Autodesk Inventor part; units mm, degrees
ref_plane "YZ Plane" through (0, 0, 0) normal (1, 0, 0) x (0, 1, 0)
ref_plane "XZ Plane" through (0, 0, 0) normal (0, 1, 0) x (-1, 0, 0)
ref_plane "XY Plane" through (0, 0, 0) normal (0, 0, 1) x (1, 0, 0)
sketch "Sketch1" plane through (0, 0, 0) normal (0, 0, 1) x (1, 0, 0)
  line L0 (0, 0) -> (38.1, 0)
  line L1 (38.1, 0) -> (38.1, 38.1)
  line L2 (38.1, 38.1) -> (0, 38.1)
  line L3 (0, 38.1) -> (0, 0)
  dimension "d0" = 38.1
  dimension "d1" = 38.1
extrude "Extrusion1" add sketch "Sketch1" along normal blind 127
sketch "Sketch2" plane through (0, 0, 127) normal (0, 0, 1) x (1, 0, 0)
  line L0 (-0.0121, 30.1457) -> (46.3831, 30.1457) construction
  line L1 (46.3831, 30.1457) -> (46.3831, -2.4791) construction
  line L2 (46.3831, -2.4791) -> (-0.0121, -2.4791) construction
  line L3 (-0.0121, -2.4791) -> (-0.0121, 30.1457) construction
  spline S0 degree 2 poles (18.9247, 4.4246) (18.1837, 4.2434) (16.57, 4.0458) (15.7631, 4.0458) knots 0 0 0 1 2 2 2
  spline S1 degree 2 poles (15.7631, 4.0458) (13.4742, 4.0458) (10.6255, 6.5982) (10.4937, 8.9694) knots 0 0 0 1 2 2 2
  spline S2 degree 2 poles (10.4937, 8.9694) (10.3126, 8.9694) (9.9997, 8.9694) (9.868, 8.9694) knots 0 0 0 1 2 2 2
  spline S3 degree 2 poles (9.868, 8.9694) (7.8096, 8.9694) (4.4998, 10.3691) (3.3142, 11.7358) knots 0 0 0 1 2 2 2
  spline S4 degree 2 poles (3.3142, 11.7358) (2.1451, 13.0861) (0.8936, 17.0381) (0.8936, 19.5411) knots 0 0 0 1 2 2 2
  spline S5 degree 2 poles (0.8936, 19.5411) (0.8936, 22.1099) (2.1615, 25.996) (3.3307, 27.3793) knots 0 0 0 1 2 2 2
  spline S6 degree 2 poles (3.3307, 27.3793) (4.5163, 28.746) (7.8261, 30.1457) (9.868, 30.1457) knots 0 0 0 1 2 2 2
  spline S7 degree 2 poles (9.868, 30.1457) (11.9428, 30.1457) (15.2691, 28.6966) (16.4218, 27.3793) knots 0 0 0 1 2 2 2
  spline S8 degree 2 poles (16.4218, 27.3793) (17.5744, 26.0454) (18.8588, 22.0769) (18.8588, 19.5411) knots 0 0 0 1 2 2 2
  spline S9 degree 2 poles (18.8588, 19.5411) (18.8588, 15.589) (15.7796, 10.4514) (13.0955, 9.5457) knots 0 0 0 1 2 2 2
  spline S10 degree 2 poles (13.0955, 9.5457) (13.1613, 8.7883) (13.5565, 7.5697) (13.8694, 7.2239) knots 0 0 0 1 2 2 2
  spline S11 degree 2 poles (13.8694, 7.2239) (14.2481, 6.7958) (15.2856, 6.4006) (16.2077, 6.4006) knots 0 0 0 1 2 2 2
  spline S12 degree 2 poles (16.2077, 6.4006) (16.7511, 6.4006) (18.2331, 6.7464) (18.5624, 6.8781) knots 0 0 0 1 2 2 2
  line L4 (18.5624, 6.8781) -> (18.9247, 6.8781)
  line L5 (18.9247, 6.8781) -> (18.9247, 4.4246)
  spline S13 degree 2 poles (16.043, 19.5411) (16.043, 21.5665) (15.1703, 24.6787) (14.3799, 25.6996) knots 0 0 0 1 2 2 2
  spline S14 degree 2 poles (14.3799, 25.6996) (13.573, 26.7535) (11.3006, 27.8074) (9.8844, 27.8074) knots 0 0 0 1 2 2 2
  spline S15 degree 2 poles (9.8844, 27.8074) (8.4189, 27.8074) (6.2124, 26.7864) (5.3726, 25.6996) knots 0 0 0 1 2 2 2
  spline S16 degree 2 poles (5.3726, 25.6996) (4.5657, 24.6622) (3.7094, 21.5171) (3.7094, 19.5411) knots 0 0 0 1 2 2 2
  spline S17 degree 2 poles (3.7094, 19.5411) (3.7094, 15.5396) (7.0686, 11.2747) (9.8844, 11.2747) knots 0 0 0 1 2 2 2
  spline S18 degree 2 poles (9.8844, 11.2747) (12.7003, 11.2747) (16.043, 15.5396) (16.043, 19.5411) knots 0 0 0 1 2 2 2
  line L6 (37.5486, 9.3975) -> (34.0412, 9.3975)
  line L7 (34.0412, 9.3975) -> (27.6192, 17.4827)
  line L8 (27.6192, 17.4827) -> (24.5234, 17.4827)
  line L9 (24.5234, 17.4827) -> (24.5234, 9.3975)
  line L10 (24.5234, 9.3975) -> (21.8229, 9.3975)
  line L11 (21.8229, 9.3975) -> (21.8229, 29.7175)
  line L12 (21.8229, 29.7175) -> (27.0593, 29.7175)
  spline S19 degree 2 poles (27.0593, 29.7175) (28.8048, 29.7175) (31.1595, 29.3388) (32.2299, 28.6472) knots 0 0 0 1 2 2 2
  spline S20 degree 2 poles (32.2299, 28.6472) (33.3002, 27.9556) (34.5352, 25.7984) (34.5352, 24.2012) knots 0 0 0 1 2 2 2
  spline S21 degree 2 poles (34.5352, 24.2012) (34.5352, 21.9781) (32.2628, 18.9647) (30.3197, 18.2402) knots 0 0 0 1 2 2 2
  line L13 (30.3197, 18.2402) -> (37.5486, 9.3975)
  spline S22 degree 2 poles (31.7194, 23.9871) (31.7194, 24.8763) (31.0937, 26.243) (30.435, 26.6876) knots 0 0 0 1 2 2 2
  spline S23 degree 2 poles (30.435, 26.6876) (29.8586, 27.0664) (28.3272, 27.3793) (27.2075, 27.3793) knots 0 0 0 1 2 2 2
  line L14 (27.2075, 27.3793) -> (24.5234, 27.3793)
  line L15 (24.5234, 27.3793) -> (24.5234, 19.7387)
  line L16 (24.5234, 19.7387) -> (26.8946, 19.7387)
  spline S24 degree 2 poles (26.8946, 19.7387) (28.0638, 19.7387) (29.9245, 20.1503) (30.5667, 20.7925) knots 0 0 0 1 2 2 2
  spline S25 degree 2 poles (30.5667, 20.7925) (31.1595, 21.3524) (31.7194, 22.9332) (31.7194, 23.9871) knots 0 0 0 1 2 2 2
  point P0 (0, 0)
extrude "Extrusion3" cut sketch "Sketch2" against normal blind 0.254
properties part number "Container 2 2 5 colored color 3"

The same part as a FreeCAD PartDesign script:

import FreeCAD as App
import Part
import Sketcher

V = App.Vector
Q = App.Units.Quantity

doc = App.newDocument("Part")
body = doc.addObject("PartDesign::Body", "Body")

# Sketch on XY plane
sketch1 = doc.addObject("Sketcher::SketchObject", "Sketch")
body.addObject(sketch1)
sketch1.AttachmentSupport = (doc.XY_Plane, [""])
sketch1.MapMode = "FlatFace"
sketch1.addGeometry(Part.LineSegment(V(0, 38, 0), V(0, 0, 0)), False)
sketch1.addGeometry(Part.LineSegment(V(0, 0, 0), V(38, 0, 0)), False)
sketch1.addGeometry(Part.LineSegment(V(38, 0, 0), V(38, 38, 0)), False)
sketch1.addGeometry(Part.LineSegment(V(38, 38, 0), V(0, 38, 0)), False)
sketch1.addConstraint(Sketcher.Constraint("Coincident", 0, 2, 1, 1))
sketch1.addConstraint(Sketcher.Constraint("Coincident", 1, 2, 2, 1))
sketch1.addConstraint(Sketcher.Constraint("Coincident", 2, 2, 3, 1))
sketch1.addConstraint(Sketcher.Constraint("Coincident", 3, 2, 0, 1))
sketch1.addConstraint(Sketcher.Constraint("Vertical", 0))
sketch1.addConstraint(Sketcher.Constraint("Horizontal", 1))
sketch1.addConstraint(Sketcher.Constraint("Vertical", 2))
sketch1.addConstraint(Sketcher.Constraint("Horizontal", 3))
sketch1.addConstraint(Sketcher.Constraint("Coincident", 0, 2, -1, 1))
sketch1.addConstraint(Sketcher.Constraint("Equal", 3, 0))
sketch1.addConstraint(Sketcher.Constraint("DistanceX", 1, 1, 1, 2, Q("1.5 in")))
pad1 = doc.addObject("PartDesign::Pad", "Pad")
body.addObject(pad1)
pad1.Profile = sketch1
pad1.Length = Q("5 in")

# Sketch on XY plane
sketch2 = doc.addObject("Sketcher::SketchObject", "Sketch001")
body.addObject(sketch2)
sketch2.AttachmentSupport = (doc.XY_Plane, [""])
sketch2.MapMode = "FlatFace"
sketch2.AttachmentOffset = App.Placement(V(0, 0, 5 * 25.4), App.Rotation())
sketch2.addGeometry(Part.BSplineCurve([V(18.9247, 4.4246, 0), V(18.1837, 4.2434, 0), V(16.57, 4.0458, 0), V(15.7631, 4.0458, 0)], [3, 1, 3], [0, 1, 2], False, 2, [1, 1, 1, 1], False), False)
sketch2.addGeometry(Part.LineSegment(V(18.9247, 4.4246, 0), V(18.9247, 6.8781, 0)), False)
sketch2.addGeometry(Part.LineSegment(V(18.9247, 6.8781, 0), V(18.5624, 6.8781, 0)), False)
sketch2.addGeometry(Part.BSplineCurve([V(16.2077, 6.4006, 0), V(16.7511, 6.4006, 0), V(18.2331, 6.7464, 0), V(18.5624, 6.8781, 0)], [3, 1, 3], [0, 1, 2], False, 2, [1, 1, 1, 1], False), False)
sketch2.addGeometry(Part.BSplineCurve([V(13.8694, 7.2239, 0), V(14.2481, 6.7958, 0), V(15.2856, 6.4006, 0), V(16.2077, 6.4006, 0)], [3, 1, 3], [0, 1, 2], False, 2, [1, 1, 1, 1], False), False)
sketch2.addGeometry(Part.BSplineCurve([V(13.0955, 9.5457, 0), V(13.1613, 8.7883, 0), V(13.5565, 7.5697, 0), V(13.8694, 7.2239, 0)], [3, 1, 3], [0, 1, 2], False, 2, [1, 1, 1, 1], False), False)
sketch2.addGeometry(Part.BSplineCurve([V(18.8588, 19.5411, 0), V(18.8588, 15.589, 0), V(15.7796, 10.4514, 0), V(13.0955, 9.5457, 0)], [3, 1, 3], [0, 1, 2], False, 2, [1, 1, 1, 1], False), False)
sketch2.addGeometry(Part.BSplineCurve([V(16.4218, 27.3793, 0), V(17.5744, 26.0454, 0), V(18.8588, 22.0769, 0), V(18.8588, 19.5411, 0)], [3, 1, 3], [0, 1, 2], False, 2, [1, 1, 1, 1], False), False)
sketch2.addGeometry(Part.BSplineCurve([V(9.868, 30.1457, 0), V(11.9428, 30.1457, 0), V(15.2691, 28.6966, 0), V(16.4218, 27.3793, 0)], [3, 1, 3], [0, 1, 2], False, 2, [1, 1, 1, 1], False), False)
sketch2.addGeometry(Part.BSplineCurve([V(3.3307, 27.3793, 0), V(4.5163, 28.746, 0), V(7.8261, 30.1457, 0), V(9.868, 30.1457, 0)], [3, 1, 3], [0, 1, 2], False, 2, [1, 1, 1, 1], False), False)
sketch2.addGeometry(Part.BSplineCurve([V(0.8936, 19.5411, 0), V(0.8936, 22.1099, 0), V(2.1615, 25.996, 0), V(3.3307, 27.3793, 0)], [3, 1, 3], [0, 1, 2], False, 2, [1, 1, 1, 1], False), False)
sketch2.addGeometry(Part.BSplineCurve([V(3.3142, 11.7358, 0), V(2.1451, 13.0861, 0), V(0.8936, 17.0381, 0), V(0.8936, 19.5411, 0)], [3, 1, 3], [0, 1, 2], False, 2, [1, 1, 1, 1], False), False)
sketch2.addGeometry(Part.BSplineCurve([V(9.868, 8.9694, 0), V(7.8096, 8.9694, 0), V(4.4998, 10.3691, 0), V(3.3142, 11.7358, 0)], [3, 1, 3], [0, 1, 2], False, 2, [1, 1, 1, 1], False), False)
sketch2.addGeometry(Part.BSplineCurve([V(10.4937, 8.9694, 0), V(10.3126, 8.9694, 0), V(9.9997, 8.9694, 0), V(9.868, 8.9694, 0)], [3, 1, 3], [0, 1, 2], False, 2, [1, 1, 1, 1], False), False)
sketch2.addGeometry(Part.BSplineCurve([V(15.7631, 4.0458, 0), V(13.4742, 4.0458, 0), V(10.6255, 6.5982, 0), V(10.4937, 8.9694, 0)], [3, 1, 3], [0, 1, 2], False, 2, [1, 1, 1, 1], False), False)
sketch2.addGeometry(Part.BSplineCurve([V(16.043, 19.5411, 0), V(16.043, 21.5665, 0), V(15.1703, 24.6787, 0), V(14.3799, 25.6996, 0)], [3, 1, 3], [0, 1, 2], False, 2, [1, 1, 1, 1], False), False)
sketch2.addGeometry(Part.BSplineCurve([V(9.8844, 11.2747, 0), V(12.7003, 11.2747, 0), V(16.043, 15.5396, 0), V(16.043, 19.5411, 0)], [3, 1, 3], [0, 1, 2], False, 2, [1, 1, 1, 1], False), False)
sketch2.addGeometry(Part.BSplineCurve([V(3.7094, 19.5411, 0), V(3.7094, 15.5396, 0), V(7.0686, 11.2747, 0), V(9.8844, 11.2747, 0)], [3, 1, 3], [0, 1, 2], False, 2, [1, 1, 1, 1], False), False)
sketch2.addGeometry(Part.BSplineCurve([V(5.3726, 25.6996, 0), V(4.5657, 24.6622, 0), V(3.7094, 21.5171, 0), V(3.7094, 19.5411, 0)], [3, 1, 3], [0, 1, 2], False, 2, [1, 1, 1, 1], False), False)
sketch2.addGeometry(Part.BSplineCurve([V(9.8844, 27.8074, 0), V(8.4189, 27.8074, 0), V(6.2124, 26.7864, 0), V(5.3726, 25.6996, 0)], [3, 1, 3], [0, 1, 2], False, 2, [1, 1, 1, 1], False), False)
sketch2.addGeometry(Part.BSplineCurve([V(14.3799, 25.6996, 0), V(13.573, 26.7535, 0), V(11.3006, 27.8074, 0), V(9.8844, 27.8074, 0)], [3, 1, 3], [0, 1, 2], False, 2, [1, 1, 1, 1], False), False)
sketch2.addGeometry(Part.LineSegment(V(34.0412, 9.3975, 0), V(37.5486, 9.3975, 0)), False)
sketch2.addGeometry(Part.LineSegment(V(37.5486, 9.3975, 0), V(30.3197, 18.2402, 0)), False)
sketch2.addGeometry(Part.BSplineCurve([V(34.5352, 24.2012, 0), V(34.5352, 21.9781, 0), V(32.2628, 18.9647, 0), V(30.3197, 18.2402, 0)], [3, 1, 3], [0, 1, 2], False, 2, [1, 1, 1, 1], False), False)
sketch2.addGeometry(Part.BSplineCurve([V(32.2299, 28.6472, 0), V(33.3002, 27.9556, 0), V(34.5352, 25.7984, 0), V(34.5352, 24.2012, 0)], [3, 1, 3], [0, 1, 2], False, 2, [1, 1, 1, 1], False), False)
sketch2.addGeometry(Part.BSplineCurve([V(27.0593, 29.7175, 0), V(28.8048, 29.7175, 0), V(31.1595, 29.3388, 0), V(32.2299, 28.6472, 0)], [3, 1, 3], [0, 1, 2], False, 2, [1, 1, 1, 1], False), False)
sketch2.addGeometry(Part.LineSegment(V(27.0593, 29.7175, 0), V(21.8229, 29.7175, 0)), False)
sketch2.addGeometry(Part.LineSegment(V(21.8229, 29.7175, 0), V(21.8229, 9.3975, 0)), False)
sketch2.addGeometry(Part.LineSegment(V(21.8229, 9.3975, 0), V(24.5234, 9.3975, 0)), False)
sketch2.addGeometry(Part.LineSegment(V(24.5234, 9.3975, 0), V(24.5234, 17.4827, 0)), False)
sketch2.addGeometry(Part.LineSegment(V(24.5234, 17.4827, 0), V(27.6192, 17.4827, 0)), False)
sketch2.addGeometry(Part.LineSegment(V(27.6192, 17.4827, 0), V(34.0412, 9.3975, 0)), False)
sketch2.addGeometry(Part.BSplineCurve([V(31.7194, 23.9871, 0), V(31.7194, 24.8763, 0), V(31.0937, 26.243, 0), V(30.435, 26.6876, 0)], [3, 1, 3], [0, 1, 2], False, 2, [1, 1, 1, 1], False), False)
sketch2.addGeometry(Part.BSplineCurve([V(30.5667, 20.7925, 0), V(31.1595, 21.3524, 0), V(31.7194, 22.9332, 0), V(31.7194, 23.9871, 0)], [3, 1, 3], [0, 1, 2], False, 2, [1, 1, 1, 1], False), False)
sketch2.addGeometry(Part.BSplineCurve([V(26.8946, 19.7387, 0), V(28.0638, 19.7387, 0), V(29.9245, 20.1503, 0), V(30.5667, 20.7925, 0)], [3, 1, 3], [0, 1, 2], False, 2, [1, 1, 1, 1], False), False)
sketch2.addGeometry(Part.LineSegment(V(26.8946, 19.7387, 0), V(24.5234, 19.7387, 0)), False)
sketch2.addGeometry(Part.LineSegment(V(24.5234, 19.7387, 0), V(24.5234, 27.3793, 0)), False)
sketch2.addGeometry(Part.LineSegment(V(24.5234, 27.3793, 0), V(27.2075, 27.3793, 0)), False)
sketch2.addGeometry(Part.BSplineCurve([V(30.435, 26.6876, 0), V(29.8586, 27.0664, 0), V(28.3272, 27.3793, 0), V(27.2075, 27.3793, 0)], [3, 1, 3], [0, 1, 2], False, 2, [1, 1, 1, 1], False), False)
sketch2.addConstraint(Sketcher.Constraint("Block", 0))
sketch2.addConstraint(Sketcher.Constraint("Block", 3))
sketch2.addConstraint(Sketcher.Constraint("Block", 4))
sketch2.addConstraint(Sketcher.Constraint("Block", 5))
sketch2.addConstraint(Sketcher.Constraint("Block", 6))
sketch2.addConstraint(Sketcher.Constraint("Block", 7))
sketch2.addConstraint(Sketcher.Constraint("Block", 8))
sketch2.addConstraint(Sketcher.Constraint("Block", 9))
sketch2.addConstraint(Sketcher.Constraint("Block", 10))
sketch2.addConstraint(Sketcher.Constraint("Block", 11))
sketch2.addConstraint(Sketcher.Constraint("Block", 12))
sketch2.addConstraint(Sketcher.Constraint("Block", 13))
sketch2.addConstraint(Sketcher.Constraint("Block", 14))
sketch2.addConstraint(Sketcher.Constraint("Block", 15))
sketch2.addConstraint(Sketcher.Constraint("Block", 16))
sketch2.addConstraint(Sketcher.Constraint("Block", 17))
sketch2.addConstraint(Sketcher.Constraint("Block", 18))
sketch2.addConstraint(Sketcher.Constraint("Block", 19))
sketch2.addConstraint(Sketcher.Constraint("Block", 20))
sketch2.addConstraint(Sketcher.Constraint("Block", 23))
sketch2.addConstraint(Sketcher.Constraint("Block", 24))
sketch2.addConstraint(Sketcher.Constraint("Block", 25))
sketch2.addConstraint(Sketcher.Constraint("Block", 32))
sketch2.addConstraint(Sketcher.Constraint("Block", 33))
sketch2.addConstraint(Sketcher.Constraint("Block", 34))
sketch2.addConstraint(Sketcher.Constraint("Block", 38))
sketch2.addConstraint(Sketcher.Constraint("Coincident", 0, 1, 1, 1))
sketch2.addConstraint(Sketcher.Constraint("Coincident", 1, 2, 2, 1))
sketch2.addConstraint(Sketcher.Constraint("Coincident", 2, 2, 3, 2))
sketch2.addConstraint(Sketcher.Constraint("Coincident", 21, 2, 22, 1))
sketch2.addConstraint(Sketcher.Constraint("Coincident", 22, 2, 23, 2))
sketch2.addConstraint(Sketcher.Constraint("Coincident", 25, 1, 26, 1))
sketch2.addConstraint(Sketcher.Constraint("Coincident", 26, 2, 27, 1))
sketch2.addConstraint(Sketcher.Constraint("Coincident", 27, 2, 28, 1))
sketch2.addConstraint(Sketcher.Constraint("Coincident", 28, 2, 29, 1))
sketch2.addConstraint(Sketcher.Constraint("Coincident", 29, 2, 30, 1))
sketch2.addConstraint(Sketcher.Constraint("Coincident", 30, 2, 31, 1))
sketch2.addConstraint(Sketcher.Constraint("Coincident", 31, 2, 21, 1))
sketch2.addConstraint(Sketcher.Constraint("Coincident", 34, 1, 35, 1))
sketch2.addConstraint(Sketcher.Constraint("Coincident", 35, 2, 36, 1))
sketch2.addConstraint(Sketcher.Constraint("Coincident", 36, 2, 37, 1))
sketch2.addConstraint(Sketcher.Constraint("Coincident", 37, 2, 38, 2))
sketch2.addConstraint(Sketcher.Constraint("Vertical", 1))
sketch2.addConstraint(Sketcher.Constraint("Horizontal", 2))
sketch2.addConstraint(Sketcher.Constraint("Horizontal", 21))
sketch2.addConstraint(Sketcher.Constraint("Horizontal", 26))
sketch2.addConstraint(Sketcher.Constraint("Vertical", 27))
sketch2.addConstraint(Sketcher.Constraint("Horizontal", 28))
sketch2.addConstraint(Sketcher.Constraint("Vertical", 29))
sketch2.addConstraint(Sketcher.Constraint("Horizontal", 30))
sketch2.addConstraint(Sketcher.Constraint("Horizontal", 35))
sketch2.addConstraint(Sketcher.Constraint("Vertical", 36))
sketch2.addConstraint(Sketcher.Constraint("Horizontal", 37))
sketch2.addConstraint(Sketcher.Constraint("Horizontal", 21, 2, 27, 2))
sketch2.addConstraint(Sketcher.Constraint("Vertical", 29, 2, 35, 2))
sketch2.addConstraint(Sketcher.Constraint("DistanceY", 27, 2, 27, 1, Q("0.8 in")))
sketch2.addConstraint(Sketcher.Constraint("Angle", 31, Q("-51.5402 deg")))
sketch2.addConstraint(Sketcher.Constraint("DistanceX", 26, 2, 37, 2, Q("0.212 in")))
sketch2.addConstraint(Sketcher.Constraint("Distance", 31, Q("0.4065 in")))
sketch2.addConstraint(Sketcher.Constraint("DistanceX", 21, 1, 21, 2, Q("3.5074 mm")))
sketch2.addConstraint(Sketcher.Constraint("DistanceX", 28, 1, 28, 2, Q("2.7005 mm")))
sketch2.addConstraint(Sketcher.Constraint("DistanceX", 30, 1, 30, 2, Q("3.0958 mm")))
pocket1 = doc.addObject("PartDesign::Pocket", "Pocket")
body.addObject(pocket1)
pocket1.Profile = sketch2
pocket1.Length = Q("0.01 in")

doc.recompute()
